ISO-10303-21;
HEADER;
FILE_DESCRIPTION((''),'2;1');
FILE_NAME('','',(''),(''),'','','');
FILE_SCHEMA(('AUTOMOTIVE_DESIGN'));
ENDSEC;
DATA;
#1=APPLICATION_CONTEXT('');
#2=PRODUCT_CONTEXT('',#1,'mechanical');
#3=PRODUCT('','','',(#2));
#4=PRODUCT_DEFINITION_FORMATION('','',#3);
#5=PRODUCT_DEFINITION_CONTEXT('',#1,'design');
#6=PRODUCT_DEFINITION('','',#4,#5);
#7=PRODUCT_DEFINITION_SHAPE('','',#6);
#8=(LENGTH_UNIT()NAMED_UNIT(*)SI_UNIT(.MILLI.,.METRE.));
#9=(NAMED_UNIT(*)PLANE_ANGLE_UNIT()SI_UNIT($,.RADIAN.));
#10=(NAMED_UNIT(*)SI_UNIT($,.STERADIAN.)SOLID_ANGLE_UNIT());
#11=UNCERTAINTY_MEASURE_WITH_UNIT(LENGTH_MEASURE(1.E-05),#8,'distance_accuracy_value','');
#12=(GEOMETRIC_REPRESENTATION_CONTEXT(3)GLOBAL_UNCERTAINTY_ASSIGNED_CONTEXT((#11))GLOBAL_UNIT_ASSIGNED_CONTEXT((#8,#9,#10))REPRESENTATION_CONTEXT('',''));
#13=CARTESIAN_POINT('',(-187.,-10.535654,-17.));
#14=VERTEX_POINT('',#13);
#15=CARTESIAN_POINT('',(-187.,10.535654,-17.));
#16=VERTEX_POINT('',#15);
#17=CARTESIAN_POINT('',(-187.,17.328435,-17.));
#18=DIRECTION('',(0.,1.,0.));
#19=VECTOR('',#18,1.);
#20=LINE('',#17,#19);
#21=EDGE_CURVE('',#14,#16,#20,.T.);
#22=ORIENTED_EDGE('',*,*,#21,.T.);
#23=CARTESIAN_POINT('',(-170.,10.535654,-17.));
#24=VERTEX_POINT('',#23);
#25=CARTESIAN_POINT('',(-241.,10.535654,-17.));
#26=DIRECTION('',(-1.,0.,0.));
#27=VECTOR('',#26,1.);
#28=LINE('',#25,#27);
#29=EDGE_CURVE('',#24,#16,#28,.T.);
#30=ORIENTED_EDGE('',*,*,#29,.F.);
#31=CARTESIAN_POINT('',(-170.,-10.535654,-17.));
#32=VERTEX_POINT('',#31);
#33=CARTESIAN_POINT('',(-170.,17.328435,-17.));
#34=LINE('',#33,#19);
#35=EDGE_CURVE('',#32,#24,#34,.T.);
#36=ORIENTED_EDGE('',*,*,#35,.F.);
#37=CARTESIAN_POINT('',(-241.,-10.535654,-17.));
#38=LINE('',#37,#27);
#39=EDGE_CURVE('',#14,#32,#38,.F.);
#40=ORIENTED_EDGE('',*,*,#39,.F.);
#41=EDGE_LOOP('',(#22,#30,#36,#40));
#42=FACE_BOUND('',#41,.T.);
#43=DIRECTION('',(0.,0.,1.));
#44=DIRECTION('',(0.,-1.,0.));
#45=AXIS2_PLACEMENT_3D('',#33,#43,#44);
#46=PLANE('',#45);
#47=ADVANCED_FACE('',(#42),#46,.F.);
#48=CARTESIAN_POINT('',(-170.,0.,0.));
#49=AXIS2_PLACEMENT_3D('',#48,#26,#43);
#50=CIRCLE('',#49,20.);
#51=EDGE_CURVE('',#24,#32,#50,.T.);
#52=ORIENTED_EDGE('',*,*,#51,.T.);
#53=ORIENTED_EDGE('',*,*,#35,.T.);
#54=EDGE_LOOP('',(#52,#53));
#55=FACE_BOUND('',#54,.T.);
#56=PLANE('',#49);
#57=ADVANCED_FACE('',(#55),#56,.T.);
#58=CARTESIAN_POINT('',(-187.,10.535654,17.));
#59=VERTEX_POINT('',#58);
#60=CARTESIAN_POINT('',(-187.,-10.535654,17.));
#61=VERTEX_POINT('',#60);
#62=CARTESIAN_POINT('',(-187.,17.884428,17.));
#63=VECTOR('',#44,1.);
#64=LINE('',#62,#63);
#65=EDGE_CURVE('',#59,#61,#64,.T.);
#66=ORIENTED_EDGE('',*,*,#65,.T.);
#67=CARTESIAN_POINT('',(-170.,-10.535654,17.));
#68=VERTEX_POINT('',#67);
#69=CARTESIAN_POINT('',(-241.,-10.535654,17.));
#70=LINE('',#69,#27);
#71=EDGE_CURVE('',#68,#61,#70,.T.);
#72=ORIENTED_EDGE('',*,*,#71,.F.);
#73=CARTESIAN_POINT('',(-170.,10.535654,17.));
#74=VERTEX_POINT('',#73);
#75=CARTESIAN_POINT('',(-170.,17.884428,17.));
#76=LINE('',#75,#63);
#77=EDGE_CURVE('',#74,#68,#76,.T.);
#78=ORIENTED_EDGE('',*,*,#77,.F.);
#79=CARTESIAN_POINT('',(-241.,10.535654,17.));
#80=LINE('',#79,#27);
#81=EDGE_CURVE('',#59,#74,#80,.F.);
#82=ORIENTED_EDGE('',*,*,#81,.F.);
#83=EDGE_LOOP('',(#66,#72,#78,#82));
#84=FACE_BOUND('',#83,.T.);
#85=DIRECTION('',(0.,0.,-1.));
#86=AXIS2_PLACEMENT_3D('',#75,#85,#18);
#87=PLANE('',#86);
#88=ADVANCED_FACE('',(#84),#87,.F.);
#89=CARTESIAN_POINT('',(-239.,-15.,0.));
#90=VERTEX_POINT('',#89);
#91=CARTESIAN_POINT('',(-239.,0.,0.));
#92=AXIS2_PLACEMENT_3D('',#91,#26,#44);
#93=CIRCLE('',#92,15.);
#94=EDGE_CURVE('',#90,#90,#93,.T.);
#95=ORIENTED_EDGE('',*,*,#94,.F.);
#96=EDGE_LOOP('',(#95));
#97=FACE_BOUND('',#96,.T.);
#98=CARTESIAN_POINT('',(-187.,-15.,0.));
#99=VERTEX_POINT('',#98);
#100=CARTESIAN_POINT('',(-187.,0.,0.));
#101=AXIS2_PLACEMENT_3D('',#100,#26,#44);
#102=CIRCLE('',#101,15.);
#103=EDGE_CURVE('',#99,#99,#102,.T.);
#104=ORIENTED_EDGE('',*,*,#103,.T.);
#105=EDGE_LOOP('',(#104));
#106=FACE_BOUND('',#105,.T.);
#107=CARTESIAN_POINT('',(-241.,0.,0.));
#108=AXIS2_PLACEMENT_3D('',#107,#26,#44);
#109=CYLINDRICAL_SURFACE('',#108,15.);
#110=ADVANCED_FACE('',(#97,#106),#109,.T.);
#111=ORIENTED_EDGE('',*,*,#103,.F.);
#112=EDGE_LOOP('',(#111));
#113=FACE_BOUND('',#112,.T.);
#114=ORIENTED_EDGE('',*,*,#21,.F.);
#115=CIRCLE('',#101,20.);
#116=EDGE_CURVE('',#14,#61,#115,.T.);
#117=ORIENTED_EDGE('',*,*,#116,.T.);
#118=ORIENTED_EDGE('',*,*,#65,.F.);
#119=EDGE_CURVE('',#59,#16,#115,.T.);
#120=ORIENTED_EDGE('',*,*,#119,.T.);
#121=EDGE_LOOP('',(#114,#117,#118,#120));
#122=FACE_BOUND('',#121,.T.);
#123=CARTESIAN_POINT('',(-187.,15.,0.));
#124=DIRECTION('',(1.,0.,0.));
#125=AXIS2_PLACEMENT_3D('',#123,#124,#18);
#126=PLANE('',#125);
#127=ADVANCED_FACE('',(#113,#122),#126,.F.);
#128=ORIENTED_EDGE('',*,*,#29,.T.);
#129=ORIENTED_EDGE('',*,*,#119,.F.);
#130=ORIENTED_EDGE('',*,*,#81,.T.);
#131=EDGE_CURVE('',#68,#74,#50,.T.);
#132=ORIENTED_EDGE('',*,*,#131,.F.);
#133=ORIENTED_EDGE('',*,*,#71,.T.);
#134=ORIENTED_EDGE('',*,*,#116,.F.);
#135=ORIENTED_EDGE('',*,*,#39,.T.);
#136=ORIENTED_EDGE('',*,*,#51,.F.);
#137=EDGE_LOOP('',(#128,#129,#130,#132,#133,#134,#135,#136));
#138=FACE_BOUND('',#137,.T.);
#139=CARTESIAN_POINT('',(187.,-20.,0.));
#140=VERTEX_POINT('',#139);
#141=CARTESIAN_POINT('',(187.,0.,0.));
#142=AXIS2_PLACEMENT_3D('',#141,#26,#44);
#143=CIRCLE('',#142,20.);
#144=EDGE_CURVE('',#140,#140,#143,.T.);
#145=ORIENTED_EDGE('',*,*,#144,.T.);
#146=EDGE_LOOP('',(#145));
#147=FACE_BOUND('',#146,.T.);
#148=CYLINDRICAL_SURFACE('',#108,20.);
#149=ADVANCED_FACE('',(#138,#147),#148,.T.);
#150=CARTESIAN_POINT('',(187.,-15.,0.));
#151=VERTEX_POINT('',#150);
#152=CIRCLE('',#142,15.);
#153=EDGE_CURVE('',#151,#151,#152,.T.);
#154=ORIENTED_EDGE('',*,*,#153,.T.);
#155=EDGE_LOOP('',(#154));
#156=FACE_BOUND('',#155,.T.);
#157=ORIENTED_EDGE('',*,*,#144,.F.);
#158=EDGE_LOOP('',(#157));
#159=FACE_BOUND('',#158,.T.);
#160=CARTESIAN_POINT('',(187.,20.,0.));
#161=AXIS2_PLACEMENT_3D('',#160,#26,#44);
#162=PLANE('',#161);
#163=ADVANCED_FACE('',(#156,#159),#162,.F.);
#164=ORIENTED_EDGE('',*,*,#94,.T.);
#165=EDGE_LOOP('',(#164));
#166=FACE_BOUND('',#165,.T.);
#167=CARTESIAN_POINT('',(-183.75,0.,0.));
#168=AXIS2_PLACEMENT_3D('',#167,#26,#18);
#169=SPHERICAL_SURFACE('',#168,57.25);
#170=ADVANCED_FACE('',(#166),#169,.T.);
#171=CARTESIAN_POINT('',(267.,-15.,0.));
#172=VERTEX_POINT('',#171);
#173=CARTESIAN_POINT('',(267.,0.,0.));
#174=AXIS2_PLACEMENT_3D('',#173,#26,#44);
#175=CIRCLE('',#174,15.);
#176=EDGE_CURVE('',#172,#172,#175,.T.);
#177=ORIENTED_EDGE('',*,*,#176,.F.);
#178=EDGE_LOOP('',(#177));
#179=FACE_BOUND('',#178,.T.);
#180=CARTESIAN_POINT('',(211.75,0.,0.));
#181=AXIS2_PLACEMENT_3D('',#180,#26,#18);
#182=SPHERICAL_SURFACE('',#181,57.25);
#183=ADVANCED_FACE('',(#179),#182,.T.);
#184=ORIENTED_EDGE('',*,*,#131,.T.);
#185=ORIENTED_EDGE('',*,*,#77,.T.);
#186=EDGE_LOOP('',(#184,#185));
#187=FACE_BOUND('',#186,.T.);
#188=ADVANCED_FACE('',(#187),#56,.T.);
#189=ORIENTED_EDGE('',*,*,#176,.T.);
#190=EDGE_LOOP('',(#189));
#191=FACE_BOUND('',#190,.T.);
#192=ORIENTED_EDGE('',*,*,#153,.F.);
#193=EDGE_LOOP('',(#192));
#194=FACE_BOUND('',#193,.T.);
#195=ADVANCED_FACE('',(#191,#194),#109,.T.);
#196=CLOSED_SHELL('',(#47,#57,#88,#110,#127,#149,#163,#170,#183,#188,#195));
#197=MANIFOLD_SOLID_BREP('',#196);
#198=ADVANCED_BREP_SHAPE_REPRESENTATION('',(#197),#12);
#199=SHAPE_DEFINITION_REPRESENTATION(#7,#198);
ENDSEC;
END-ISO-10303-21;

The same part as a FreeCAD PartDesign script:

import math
import FreeCAD as App
import Part
import Sketcher
from FreeCAD import Vector
Q = App.Units.Quantity


def add_polygon(sketch, points):
    """Adds a closed chain of lines whose ends are joined by coincident constraints."""
    first, n = sketch.GeometryCount, len(points)
    for a, b in zip(points, points[1:] + points[:1]):
        sketch.addGeometry(Part.LineSegment(App.Vector(*a, 0), App.Vector(*b, 0)), False)
    for i in range(n):
        sketch.addConstraint(Sketcher.Constraint("Coincident", first + i, 2, first + (i + 1) % n, 1))

doc = App.newDocument("Part")
body = doc.addObject("PartDesign::Body", "Body")

# Sketch on XY plane
sketch1 = body.newObject("Sketcher::SketchObject", "Sketch")
sketch1.AttachmentSupport = (doc.getObject("XY_Plane"), [""])
sketch1.MapMode = "FlatFace"
sketch1.addGeometry([
    Part.LineSegment(Vector(-187, 15, 0), Vector(-239, 15, 0)),  # 0
    Part.ArcOfCircle(Part.Circle(Vector(-184, 0, 0), Vector(0, 0, 1), 57), math.radians(164.81), math.radians(180)),  # 1
    Part.LineSegment(Vector(-241, 0, 0), Vector(269, 0, 0)),  # 2
    Part.ArcOfCircle(Part.Circle(Vector(212, 0, 0), Vector(0, 0, 1), 57), math.radians(0), math.radians(15.19)),  # 3
    Part.LineSegment(Vector(267, 15, 0), Vector(187, 15, 0)),  # 4
    Part.LineSegment(Vector(187, 15, 0), Vector(187, 20, 0)),  # 5
    Part.LineSegment(Vector(187, 20, 0), Vector(-187, 20, 0)),  # 6
    Part.LineSegment(Vector(-187, 20, 0), Vector(-187, 15, 0)),  # 7
], False)
sketch1.addConstraint([
    Sketcher.Constraint("Coincident", 0, 2, 1, 1),
    Sketcher.Constraint("Coincident", 1, 2, 2, 1),
    Sketcher.Constraint("Coincident", 2, 2, 3, 1),
    Sketcher.Constraint("Coincident", 3, 2, 4, 1),
    Sketcher.Constraint("Coincident", 4, 2, 5, 1),
    Sketcher.Constraint("Coincident", 5, 2, 6, 1),
    Sketcher.Constraint("Coincident", 6, 2, 7, 1),
    Sketcher.Constraint("Coincident", 7, 2, 0, 1),
    Sketcher.Constraint("Horizontal", 0),
    Sketcher.Constraint("Horizontal", 2),
    Sketcher.Constraint("Horizontal", 4),
    Sketcher.Constraint("Vertical", 5),
    Sketcher.Constraint("Horizontal", 6),
    Sketcher.Constraint("Vertical", 7),
    Sketcher.Constraint("Equal", 1, 3),
    Sketcher.Constraint("Symmetric", 4, 2, 7, 2, -2),
    Sketcher.Constraint("PointOnObject", 1, 3, -1),
    Sketcher.Constraint("PointOnObject", 3, 3, -1),
    Sketcher.Constraint("PointOnObject", 1, 2, -1),
    Sketcher.Constraint("DistanceX", 0, 2, 0, 1, Q("52 mm")),
    Sketcher.Constraint("DistanceX", 2, 1, 2, 2, Q("510 mm")),
    Sketcher.Constraint("DistanceX", 4, 2, 4, 1, Q("80 mm")),
    Sketcher.Constraint("DistanceX", 6, 2, 6, 1, Q("374 mm")),
    Sketcher.Constraint("DistanceY", 5, 1, 5, 2, Q("5 mm")),
    Sketcher.Constraint("Radius", 1, Q("57.25 mm")),
])
revolution = body.newObject("PartDesign::Revolution", "Revolution")
revolution.Profile = sketch1
revolution.ReferenceAxis = (sketch1, ["H_Axis"])
revolution.Angle = 360

# Sketch on YZ plane
sketch2 = body.newObject("Sketcher::SketchObject", "Sketch001")
sketch2.AttachmentSupport = (doc.getObject("YZ_Plane"), [""])
sketch2.MapMode = "FlatFace"
sketch2.AttachmentOffset = App.Placement(Vector(0, 0, -187), App.Rotation())
add_polygon(sketch2, [(18, 17), (-16, 17), (-16, 31), (18, 31)])  # lines 0-3
add_polygon(sketch2, [(17, -25), (-22, -25), (-22, -17), (17, -17)])  # lines 4-7
sketch2.addConstraint([
    Sketcher.Constraint("Horizontal", 0),
    Sketcher.Constraint("Vertical", 1),
    Sketcher.Constraint("Horizontal", 2),
    Sketcher.Constraint("Vertical", 3),
    Sketcher.Constraint("Horizontal", 4),
    Sketcher.Constraint("Vertical", 5),
    Sketcher.Constraint("Horizontal", 6),
    Sketcher.Constraint("Vertical", 7),
    Sketcher.Constraint("DistanceY", -1, 1, 0, 2, Q("17 mm")),
    Sketcher.Constraint("DistanceY", 5, 2, -1, 1, Q("17 mm")),
    Sketcher.Constraint("DistanceY", 1, 1, 1, 2, Q("13.807149 mm")),
    Sketcher.Constraint("DistanceX", 0, 2, 0, 1, Q("34.008213 mm")),
    Sketcher.Constraint("DistanceX", 4, 2, 4, 1, Q("39.290142 mm")),
    Sketcher.Constraint("DistanceY", 5, 1, 5, 2, Q("8.154558 mm")),
    Sketcher.Constraint("DistanceX", 0, 2, 6, 2, Q("33.45222 mm")),
    Sketcher.Constraint("DistanceX", 0, 2, -1, 1, Q("16.123785 mm")),
])
pocket1 = body.newObject("PartDesign::Pocket", "Pocket")
pocket1.Profile = sketch2
pocket1.Length = 17
pocket1.Reversed = True

doc.recompute()
